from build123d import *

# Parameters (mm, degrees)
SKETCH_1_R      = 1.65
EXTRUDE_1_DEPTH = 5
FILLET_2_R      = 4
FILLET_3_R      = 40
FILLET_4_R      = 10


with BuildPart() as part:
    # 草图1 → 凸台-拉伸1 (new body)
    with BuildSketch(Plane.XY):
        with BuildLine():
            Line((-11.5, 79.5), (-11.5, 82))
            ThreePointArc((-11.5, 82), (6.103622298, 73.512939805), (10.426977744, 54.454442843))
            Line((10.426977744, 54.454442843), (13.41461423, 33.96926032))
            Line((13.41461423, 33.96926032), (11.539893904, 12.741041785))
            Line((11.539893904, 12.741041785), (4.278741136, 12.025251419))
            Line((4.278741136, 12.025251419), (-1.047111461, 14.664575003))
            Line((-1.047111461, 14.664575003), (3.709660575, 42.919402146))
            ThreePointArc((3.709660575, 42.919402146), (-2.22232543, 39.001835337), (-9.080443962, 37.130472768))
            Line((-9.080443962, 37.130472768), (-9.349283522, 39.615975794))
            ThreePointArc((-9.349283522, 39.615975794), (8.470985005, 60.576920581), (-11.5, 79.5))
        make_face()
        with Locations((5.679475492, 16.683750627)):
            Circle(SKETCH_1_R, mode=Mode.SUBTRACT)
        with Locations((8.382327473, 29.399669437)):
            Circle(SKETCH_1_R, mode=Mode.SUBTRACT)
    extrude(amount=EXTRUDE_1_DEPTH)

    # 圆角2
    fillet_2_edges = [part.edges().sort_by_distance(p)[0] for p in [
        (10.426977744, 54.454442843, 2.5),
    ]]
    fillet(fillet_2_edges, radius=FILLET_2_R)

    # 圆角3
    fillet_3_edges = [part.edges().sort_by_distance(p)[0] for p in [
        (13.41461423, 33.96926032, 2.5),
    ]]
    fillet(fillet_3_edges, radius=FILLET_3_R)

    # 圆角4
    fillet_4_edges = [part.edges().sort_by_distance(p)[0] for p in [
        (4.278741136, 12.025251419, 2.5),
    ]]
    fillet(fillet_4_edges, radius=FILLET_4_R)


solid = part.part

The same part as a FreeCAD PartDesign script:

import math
import FreeCAD as App
import Part
import Sketcher
Q = App.Units.Quantity


def edges_at(feature, points):
    """Names of the edges that pass closest to the given points."""
    edges = feature.Shape.Edges
    near = lambda p: min(range(len(edges)), key=lambda i: edges[i].distToShape(Part.Vertex(*p))[0])
    return sorted({f"Edge{near(p) + 1}" for p in points})

doc = App.newDocument("Part")
body = doc.addObject("PartDesign::Body", "Body")

# Sketch on XY plane
sketch1 = body.newObject("Sketcher::SketchObject", "Sketch")
sketch1.AttachmentSupport = (doc.getObject("XY_Plane"), [""])
sketch1.MapMode = "FlatFace"
sketch1.addGeometry([
    Part.LineSegment(App.Vector(-11.5, 82, 0), App.Vector(-11.5, 79.5, 0)),  # 0
    Part.ArcOfCircle(Part.Circle(App.Vector(-11.5, 59.5, 0), App.Vector(0, 0, 1), 20), math.radians(-83.826714), math.radians(90)),  # 1
    Part.LineSegment(App.Vector(-9.349284, 39.615976, 0), App.Vector(-9.080444, 37.130473, 0)),  # 2
    Part.ArcOfCircle(Part.Circle(App.Vector(-11.5, 59.5, 0), App.Vector(0, 0, 1), 22.5), math.radians(-83.826714), math.radians(-47.469319)),  # 3
    Part.LineSegment(App.Vector(3.709661, 42.919402, 0), App.Vector(-1.047111, 14.664575, 0)),  # 4
    Part.LineSegment(App.Vector(-1.047111, 14.664575, 0), App.Vector(4.278741, 12.025251, 0)),  # 5
    Part.LineSegment(App.Vector(4.278741, 12.025251, 0), App.Vector(11.539894, 12.741042, 0)),  # 6
    Part.LineSegment(App.Vector(11.539894, 12.741042, 0), App.Vector(13.414614, 33.96926, 0)),  # 7
    Part.LineSegment(App.Vector(13.414614, 33.96926, 0), App.Vector(10.426978, 54.454443, 0)),  # 8
    Part.ArcOfCircle(Part.Circle(App.Vector(-11.5, 59.5, 0), App.Vector(0, 0, 1), 22.5), math.radians(-12.958602), math.radians(90)),  # 9
    Part.Circle(App.Vector(5.679475, 16.683751, 0), App.Vector(0, 0, 1), 1.65),  # 10
    Part.Circle(App.Vector(8.382327, 29.399669, 0), App.Vector(0, 0, 1), 1.65),  # 11
], False)
sketch1.addConstraint([
    Sketcher.Constraint("Coincident", 0, 2, 1, 2),
    Sketcher.Constraint("Coincident", 1, 1, 2, 1),
    Sketcher.Constraint("Coincident", 2, 2, 3, 1),
    Sketcher.Constraint("Coincident", 3, 2, 4, 1),
    Sketcher.Constraint("Coincident", 4, 2, 5, 1),
    Sketcher.Constraint("Coincident", 5, 2, 6, 1),
    Sketcher.Constraint("Coincident", 6, 2, 7, 1),
    Sketcher.Constraint("Coincident", 7, 2, 8, 1),
    Sketcher.Constraint("Coincident", 8, 2, 9, 1),
    Sketcher.Constraint("Coincident", 9, 2, 0, 1),
    Sketcher.Constraint("Vertical", 0),
    Sketcher.Constraint("Coincident", 3, 3, 1, 3),
    Sketcher.Constraint("Coincident", 9, 3, 1, 3),
    Sketcher.Constraint("Equal", 3, 9),
    Sketcher.Constraint("Equal", 10, 11),
    Sketcher.Constraint("Vertical", 9, 3, 0, 2),
    Sketcher.Constraint("Radius", 1, Q("20 mm")),
    Sketcher.Constraint("Diameter", 10, Q("3.3 mm")),
    Sketcher.Constraint("Radius", 3, Q("22.5 mm")),
    Sketcher.Constraint("DistanceY", -1, 1, 9, 2, Q("82 mm")),
    Sketcher.Constraint("DistanceX", 1, 3, -1, 1, Q("11.5 mm")),
    Sketcher.Constraint("Distance", 8, Q("20.7019 mm")),
    Sketcher.Constraint("DistanceY", 4, 2, 1, 1, Q("24.951401 mm")),
    Sketcher.Constraint("DistanceY", 5, 2, 10, 3, Q("4.658499 mm")),
    Sketcher.Constraint("Distance", 6, Q("7.296348 mm")),
    Sketcher.Constraint("Distance", 7, Q("21.310839 mm")),
    Sketcher.Constraint("DistanceY", -1, 1, 10, 3, Q("16.683751 mm")),
    Sketcher.Constraint("DistanceY", -1, 1, 11, 3, Q("29.399669 mm")),
    Sketcher.Constraint("DistanceX", -1, 1, 3, 2, Q("3.709661 mm")),
    Sketcher.Constraint("DistanceX", 4, 2, -1, 1, Q("1.047111 mm")),
    Sketcher.Constraint("DistanceX", -1, 1, 5, 2, Q("4.278741 mm")),
    Sketcher.Constraint("DistanceY", -1, 1, 6, 2, Q("12.741042 mm")),
    Sketcher.Constraint("DistanceY", -1, 1, 7, 2, Q("33.96926 mm")),
    Sketcher.Constraint("DistanceX", 10, 3, 11, 3, Q("2.702852 mm")),
    Sketcher.Constraint("DistanceX", 1, 1, 11, 3, Q("17.731611 mm")),
    Sketcher.Constraint("DistanceX", 1, 1, 2, 2, Q("0.26884 mm")),
    Sketcher.Constraint("DistanceY", 2, 2, 3, 2, Q("5.788929 mm")),
])
pad1 = body.newObject("PartDesign::Pad", "Pad")
pad1.Profile = sketch1
pad1.Length = 5
doc.recompute()

fillet = body.newObject("PartDesign::Fillet", "Fillet")
fillet.Base = (pad1, edges_at(pad1, [(10.427, 54.454, 2.5)]))
fillet.Radius = 4
doc.recompute()

fillet2 = body.newObject("PartDesign::Fillet", "Fillet001")
fillet2.Base = (fillet, edges_at(fillet, [(13.415, 33.969, 2.5)]))
fillet2.Radius = 40
doc.recompute()

fillet3 = body.newObject("PartDesign::Fillet", "Fillet002")
fillet3.Base = (fillet2, edges_at(fillet2, [(4.279, 12.025, 2.5)]))
fillet3.Radius = 10

doc.recompute()
